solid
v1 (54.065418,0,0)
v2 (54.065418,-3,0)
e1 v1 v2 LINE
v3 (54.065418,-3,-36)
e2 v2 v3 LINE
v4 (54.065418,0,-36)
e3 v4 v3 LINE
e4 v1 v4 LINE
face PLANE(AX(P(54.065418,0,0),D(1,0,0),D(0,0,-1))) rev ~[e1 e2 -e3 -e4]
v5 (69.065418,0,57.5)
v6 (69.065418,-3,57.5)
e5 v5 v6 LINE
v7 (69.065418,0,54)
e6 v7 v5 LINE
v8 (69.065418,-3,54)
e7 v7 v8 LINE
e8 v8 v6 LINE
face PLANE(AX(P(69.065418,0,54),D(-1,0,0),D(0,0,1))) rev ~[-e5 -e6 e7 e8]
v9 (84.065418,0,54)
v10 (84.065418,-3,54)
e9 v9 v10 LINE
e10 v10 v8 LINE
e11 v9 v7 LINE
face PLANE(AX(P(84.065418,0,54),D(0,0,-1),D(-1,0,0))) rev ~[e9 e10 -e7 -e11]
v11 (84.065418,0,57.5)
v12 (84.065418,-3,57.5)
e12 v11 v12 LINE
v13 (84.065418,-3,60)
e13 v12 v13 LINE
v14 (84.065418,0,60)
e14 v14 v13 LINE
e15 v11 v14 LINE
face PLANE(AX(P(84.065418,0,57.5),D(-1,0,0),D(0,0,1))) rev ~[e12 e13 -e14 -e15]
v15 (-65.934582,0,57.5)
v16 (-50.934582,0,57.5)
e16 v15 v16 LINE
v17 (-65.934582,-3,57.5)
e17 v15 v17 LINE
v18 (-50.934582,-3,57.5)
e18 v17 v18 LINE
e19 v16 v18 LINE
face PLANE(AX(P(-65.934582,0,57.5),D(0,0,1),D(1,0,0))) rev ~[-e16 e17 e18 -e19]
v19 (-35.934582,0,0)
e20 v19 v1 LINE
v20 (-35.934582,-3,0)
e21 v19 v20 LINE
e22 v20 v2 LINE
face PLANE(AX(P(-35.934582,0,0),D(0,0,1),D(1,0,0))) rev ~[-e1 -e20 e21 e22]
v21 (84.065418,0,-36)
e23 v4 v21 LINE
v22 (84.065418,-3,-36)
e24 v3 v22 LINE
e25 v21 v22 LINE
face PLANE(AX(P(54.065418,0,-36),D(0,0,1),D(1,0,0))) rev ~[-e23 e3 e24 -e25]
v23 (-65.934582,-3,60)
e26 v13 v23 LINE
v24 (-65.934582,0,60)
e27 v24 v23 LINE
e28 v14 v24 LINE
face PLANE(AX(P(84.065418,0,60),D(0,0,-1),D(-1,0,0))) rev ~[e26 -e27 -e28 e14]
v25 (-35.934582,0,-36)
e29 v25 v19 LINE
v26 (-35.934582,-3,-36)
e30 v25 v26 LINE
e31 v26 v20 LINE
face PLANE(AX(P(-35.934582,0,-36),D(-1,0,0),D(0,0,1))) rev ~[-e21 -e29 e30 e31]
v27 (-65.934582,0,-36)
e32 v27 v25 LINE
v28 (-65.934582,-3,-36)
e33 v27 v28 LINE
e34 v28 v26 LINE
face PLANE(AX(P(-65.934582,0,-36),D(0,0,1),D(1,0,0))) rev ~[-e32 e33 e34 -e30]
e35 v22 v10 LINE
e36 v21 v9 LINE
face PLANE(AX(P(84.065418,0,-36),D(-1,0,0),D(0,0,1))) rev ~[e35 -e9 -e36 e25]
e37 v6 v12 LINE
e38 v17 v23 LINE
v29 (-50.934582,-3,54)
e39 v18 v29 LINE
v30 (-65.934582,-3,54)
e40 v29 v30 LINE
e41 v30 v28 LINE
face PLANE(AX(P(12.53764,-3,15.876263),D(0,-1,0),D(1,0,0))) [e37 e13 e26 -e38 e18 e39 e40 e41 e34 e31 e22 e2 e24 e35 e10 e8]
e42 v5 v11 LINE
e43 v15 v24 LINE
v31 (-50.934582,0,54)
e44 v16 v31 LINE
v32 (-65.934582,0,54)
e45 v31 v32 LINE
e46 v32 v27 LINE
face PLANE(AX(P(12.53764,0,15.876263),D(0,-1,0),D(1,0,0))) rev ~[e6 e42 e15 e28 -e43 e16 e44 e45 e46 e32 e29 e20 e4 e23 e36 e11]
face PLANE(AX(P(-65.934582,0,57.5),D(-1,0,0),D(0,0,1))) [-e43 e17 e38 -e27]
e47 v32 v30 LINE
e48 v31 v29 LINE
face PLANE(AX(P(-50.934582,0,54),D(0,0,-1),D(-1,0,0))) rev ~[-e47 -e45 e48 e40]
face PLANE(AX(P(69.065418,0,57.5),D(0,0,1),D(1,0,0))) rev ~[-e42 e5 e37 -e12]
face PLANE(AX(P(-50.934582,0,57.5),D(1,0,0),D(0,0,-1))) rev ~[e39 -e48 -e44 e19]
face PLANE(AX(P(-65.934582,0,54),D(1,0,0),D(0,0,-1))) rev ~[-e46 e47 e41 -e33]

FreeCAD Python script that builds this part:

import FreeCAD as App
import Part
import Sketcher
Q = App.Units.Quantity

doc = App.newDocument("Part")
body = doc.addObject("PartDesign::Body", "Body")

sketch1 = body.newObject("Sketcher::SketchObject", "Sketch")
sketch1.AttachmentSupport = (doc.getObject("XZ_Plane"), [""])
sketch1.MapMode = "FlatFace"
sketch1.addGeometry(Part.LineSegment(App.Vector(54.1, -36, 0), App.Vector(84.1, -36, 0)), False)
sketch1.addGeometry(Part.LineSegment(App.Vector(84.1, -36, 0), App.Vector(84.1, 54, 0)), False)
sketch1.addGeometry(Part.LineSegment(App.Vector(84.1, 54, 0), App.Vector(69.1, 54, 0)), False)
sketch1.addGeometry(Part.LineSegment(App.Vector(69.1, 54, 0), App.Vector(69.1, 57.5, 0)), False)
sketch1.addGeometry(Part.LineSegment(App.Vector(69.1, 57.5, 0), App.Vector(84.1, 57.5, 0)), False)
sketch1.addGeometry(Part.LineSegment(App.Vector(84.1, 57.5, 0), App.Vector(84.1, 60, 0)), False)
sketch1.addGeometry(Part.LineSegment(App.Vector(84.1, 60, 0), App.Vector(-65.9, 60, 0)), False)
sketch1.addGeometry(Part.LineSegment(App.Vector(-65.9, 60, 0), App.Vector(-65.9, 57.5, 0)), False)
sketch1.addGeometry(Part.LineSegment(App.Vector(-65.9, 57.5, 0), App.Vector(-50.9, 57.5, 0)), False)
sketch1.addGeometry(Part.LineSegment(App.Vector(-50.9, 57.5, 0), App.Vector(-50.9, 54, 0)), False)
sketch1.addGeometry(Part.LineSegment(App.Vector(-50.9, 54, 0), App.Vector(-65.9, 54, 0)), False)
sketch1.addGeometry(Part.LineSegment(App.Vector(-65.9, 54, 0), App.Vector(-65.9, -36, 0)), False)
sketch1.addGeometry(Part.LineSegment(App.Vector(-65.9, -36, 0), App.Vector(-35.9, -36, 0)), False)
sketch1.addGeometry(Part.LineSegment(App.Vector(-35.9, -36, 0), App.Vector(-35.9, 0, 0)), False)
sketch1.addGeometry(Part.LineSegment(App.Vector(-35.9, 0, 0), App.Vector(54.1, 0, 0)), False)
sketch1.addGeometry(Part.LineSegment(App.Vector(54.1, 0, 0), App.Vector(54.1, -36, 0)), False)
sketch1.addConstraint(Sketcher.Constraint("Coincident", 0, 2, 1, 1))
sketch1.addConstraint(Sketcher.Constraint("Coincident", 1, 2, 2, 1))
sketch1.addConstraint(Sketcher.Constraint("Coincident", 2, 2, 3, 1))
sketch1.addConstraint(Sketcher.Constraint("Coincident", 3, 2, 4, 1))
sketch1.addConstraint(Sketcher.Constraint("Coincident", 4, 2, 5, 1))
sketch1.addConstraint(Sketcher.Constraint("Coincident", 5, 2, 6, 1))
sketch1.addConstraint(Sketcher.Constraint("Coincident", 6, 2, 7, 1))
sketch1.addConstraint(Sketcher.Constraint("Coincident", 7, 2, 8, 1))
sketch1.addConstraint(Sketcher.Constraint("Coincident", 8, 2, 9, 1))
sketch1.addConstraint(Sketcher.Constraint("Coincident", 9, 2, 10, 1))
sketch1.addConstraint(Sketcher.Constraint("Coincident", 10, 2, 11, 1))
sketch1.addConstraint(Sketcher.Constraint("Coincident", 11, 2, 12, 1))
sketch1.addConstraint(Sketcher.Constraint("Coincident", 12, 2, 13, 1))
sketch1.addConstraint(Sketcher.Constraint("Coincident", 13, 2, 14, 1))
sketch1.addConstraint(Sketcher.Constraint("Coincident", 14, 2, 15, 1))
sketch1.addConstraint(Sketcher.Constraint("Coincident", 15, 2, 0, 1))
sketch1.addConstraint(Sketcher.Constraint("Horizontal", 0))
sketch1.addConstraint(Sketcher.Constraint("Vertical", 1))
sketch1.addConstraint(Sketcher.Constraint("Horizontal", 2))
sketch1.addConstraint(Sketcher.Constraint("Vertical", 3))
sketch1.addConstraint(Sketcher.Constraint("Horizontal", 4))
sketch1.addConstraint(Sketcher.Constraint("Vertical", 5))
sketch1.addConstraint(Sketcher.Constraint("Horizontal", 6))
sketch1.addConstraint(Sketcher.Constraint("Vertical", 7))
sketch1.addConstraint(Sketcher.Constraint("Horizontal", 8))
sketch1.addConstraint(Sketcher.Constraint("Vertical", 9))
sketch1.addConstraint(Sketcher.Constraint("Horizontal", 10))
sketch1.addConstraint(Sketcher.Constraint("Vertical", 11))
sketch1.addConstraint(Sketcher.Constraint("Horizontal", 12))
sketch1.addConstraint(Sketcher.Constraint("Vertical", 13))
sketch1.addConstraint(Sketcher.Constraint("Horizontal", 14))
sketch1.addConstraint(Sketcher.Constraint("Vertical", 15))
sketch1.addConstraint(Sketcher.Constraint("PointOnObject", 13, 2, -1))
sketch1.addConstraint(Sketcher.Constraint("Horizontal", 4, 2, 7, 2))
sketch1.addConstraint(Sketcher.Constraint("Horizontal", 2, 2, 9, 2))
sketch1.addConstraint(Sketcher.Constraint("Horizontal", 0, 2, 11, 2))
sketch1.addConstraint(Sketcher.Constraint("Vertical", 1, 2, 4, 2))
sketch1.addConstraint(Sketcher.Constraint("Vertical", 7, 2, 10, 2))
sketch1.addConstraint(Sketcher.Constraint("Equal", 4, 8))
sketch1.addConstraint(Sketcher.Constraint("Equal", 0, 12))
sketch1.addConstraint(Sketcher.Constraint("Equal", 14, 1))
sketch1.addConstraint(Sketcher.Constraint("DistanceX", 0, 1, 0, 2, Q("30 mm")))
sketch1.addConstraint(Sketcher.Constraint("DistanceX", 2, 2, 2, 1, Q("15 mm")))
sketch1.addConstraint(Sketcher.Constraint("DistanceX", 6, 2, 6, 1, Q("150 mm")))
sketch1.addConstraint(Sketcher.Constraint("DistanceY", 13, 1, 13, 2, Q("36 mm")))
sketch1.addConstraint(Sketcher.Constraint("DistanceY", 3, 1, 3, 2, Q("3.5 mm")))
sketch1.addConstraint(Sketcher.Constraint("DistanceY", 5, 1, 5, 2, Q("2.5 mm")))
sketch1.addConstraint(Sketcher.Constraint("DistanceX", -1, 1, 0, 2, Q("84.065418 mm")))
pad1 = body.newObject("PartDesign::Pad", "Pad")
pad1.Profile = sketch1
pad1.Length = 3

doc.recompute()
